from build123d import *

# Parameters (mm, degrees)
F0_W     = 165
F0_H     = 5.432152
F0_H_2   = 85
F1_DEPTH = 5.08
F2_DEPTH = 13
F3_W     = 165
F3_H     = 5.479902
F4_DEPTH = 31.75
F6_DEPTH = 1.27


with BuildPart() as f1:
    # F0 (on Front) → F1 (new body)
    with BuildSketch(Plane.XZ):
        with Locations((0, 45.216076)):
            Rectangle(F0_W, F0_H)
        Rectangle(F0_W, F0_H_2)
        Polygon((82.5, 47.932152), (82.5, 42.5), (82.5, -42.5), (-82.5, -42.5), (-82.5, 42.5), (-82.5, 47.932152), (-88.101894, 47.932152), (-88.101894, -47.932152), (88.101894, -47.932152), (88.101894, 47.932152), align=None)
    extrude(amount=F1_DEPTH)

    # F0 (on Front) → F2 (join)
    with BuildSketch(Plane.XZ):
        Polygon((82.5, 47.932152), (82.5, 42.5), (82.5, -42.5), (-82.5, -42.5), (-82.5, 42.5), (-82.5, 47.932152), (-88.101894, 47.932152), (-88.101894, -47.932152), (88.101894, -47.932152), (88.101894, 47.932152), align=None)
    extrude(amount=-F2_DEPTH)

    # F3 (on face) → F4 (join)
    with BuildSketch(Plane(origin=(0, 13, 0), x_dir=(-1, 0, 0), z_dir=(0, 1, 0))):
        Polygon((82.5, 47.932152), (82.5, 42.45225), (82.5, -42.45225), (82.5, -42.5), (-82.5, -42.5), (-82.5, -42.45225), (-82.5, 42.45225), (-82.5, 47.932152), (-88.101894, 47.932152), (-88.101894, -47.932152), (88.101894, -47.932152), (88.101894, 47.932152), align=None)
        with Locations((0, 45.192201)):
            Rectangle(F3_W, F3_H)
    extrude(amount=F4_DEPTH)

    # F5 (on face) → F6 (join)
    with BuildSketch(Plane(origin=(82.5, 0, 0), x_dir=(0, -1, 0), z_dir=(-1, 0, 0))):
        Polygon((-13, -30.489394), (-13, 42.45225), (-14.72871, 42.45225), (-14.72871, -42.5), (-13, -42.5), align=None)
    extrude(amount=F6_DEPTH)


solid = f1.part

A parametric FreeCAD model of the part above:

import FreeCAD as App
import Part
import Sketcher

V = App.Vector
Q = App.Units.Quantity

doc = App.newDocument("Part")
body = doc.addObject("PartDesign::Body", "Body")

# Sketch on XZ plane
sketch1 = body.newObject("Sketcher::SketchObject", "Sketch")
sketch1.AttachmentSupport = (doc.getObject("XZ_Plane"), [""])
sketch1.MapMode = "FlatFace"
sketch1.addGeometry([
    Part.LineSegment(V(-88, 48, 0), V(-88, -48, 0)),
    Part.LineSegment(V(-88, -48, 0), V(88, -48, 0)),
    Part.LineSegment(V(88, -48, 0), V(88, 48, 0)),
    Part.LineSegment(V(88, 48, 0), V(-88, 48, 0)),
], False)
sketch1.addConstraint([
    Sketcher.Constraint("Coincident", 0, 2, 1, 1),
    Sketcher.Constraint("Coincident", 1, 2, 2, 1),
    Sketcher.Constraint("Coincident", 2, 2, 3, 1),
    Sketcher.Constraint("Coincident", 3, 2, 0, 1),
    Sketcher.Constraint("Vertical", 0),
    Sketcher.Constraint("Horizontal", 1),
    Sketcher.Constraint("Vertical", 2),
    Sketcher.Constraint("Horizontal", 3),
    Sketcher.Constraint("Symmetric", 0, 2, 2, 2, -1, 1),
    Sketcher.Constraint("DistanceX", 1, 1, 1, 2, 176.203788),
    Sketcher.Constraint("DistanceY", 0, 2, 0, 1, 95.864304),
])
pad1 = body.newObject("PartDesign::Pad", "Pad")
pad1.Profile = sketch1
pad1.Length = Q("0.2 in")

# Sketch on XZ plane
sketch2 = body.newObject("Sketcher::SketchObject", "Sketch001")
sketch2.AttachmentSupport = (doc.getObject("XZ_Plane"), [""])
sketch2.MapMode = "FlatFace"
sketch2.addGeometry([
    Part.LineSegment(V(82, 48, 0), V(82, -42, 0)),  # 0
    Part.LineSegment(V(82, -42, 0), V(-82, -42, 0)),  # 1
    Part.LineSegment(V(-82, -42, 0), V(-82, 48, 0)),  # 2
    Part.LineSegment(V(-82, 48, 0), V(-88, 48, 0)),  # 3
    Part.LineSegment(V(-88, 48, 0), V(-88, -48, 0)),  # 4
    Part.LineSegment(V(-88, -48, 0), V(88, -48, 0)),  # 5
    Part.LineSegment(V(88, -48, 0), V(88, 48, 0)),  # 6
    Part.LineSegment(V(88, 48, 0), V(82, 48, 0)),  # 7
], False)
sketch2.addConstraint([
    Sketcher.Constraint("Coincident", 0, 2, 1, 1),
    Sketcher.Constraint("Coincident", 1, 2, 2, 1),
    Sketcher.Constraint("Coincident", 2, 2, 3, 1),
    Sketcher.Constraint("Coincident", 3, 2, 4, 1),
    Sketcher.Constraint("Coincident", 4, 2, 5, 1),
    Sketcher.Constraint("Coincident", 5, 2, 6, 1),
    Sketcher.Constraint("Coincident", 6, 2, 7, 1),
    Sketcher.Constraint("Coincident", 7, 2, 0, 1),
    Sketcher.Constraint("Vertical", 0),
    Sketcher.Constraint("Horizontal", 1),
    Sketcher.Constraint("Vertical", 2),
    Sketcher.Constraint("Horizontal", 3),
    Sketcher.Constraint("Vertical", 4),
    Sketcher.Constraint("Horizontal", 5),
    Sketcher.Constraint("Vertical", 6),
    Sketcher.Constraint("Horizontal", 7),
    Sketcher.Constraint("Symmetric", 3, 2, 5, 2, -1, 1),
    Sketcher.Constraint("Symmetric", 2, 2, 7, 2, -2),
    Sketcher.Constraint("DistanceX", 1, 2, 1, 1, 165.0),
    Sketcher.Constraint("DistanceX", 5, 1, 5, 2, 176.203788),
    Sketcher.Constraint("DistanceY", 0, 2, -1, 1, 42.5),
    Sketcher.Constraint("DistanceY", 0, 2, 0, 1, 90.432152),
])
pad2 = body.newObject("PartDesign::Pad", "Pad001")
pad2.Profile = sketch2
pad2.Length = 13
pad2.Reversed = True

# Sketch on XZ plane
sketch3 = body.newObject("Sketcher::SketchObject", "Sketch002")
sketch3.AttachmentSupport = (doc.getObject("XZ_Plane"), [""])
sketch3.MapMode = "FlatFace"
sketch3.AttachmentOffset = App.Placement(V(0, 0, -13), App.Rotation())
sketch3.addGeometry([
    Part.LineSegment(V(88, 48, 0), V(88, -48, 0)),  # 0
    Part.LineSegment(V(88, -48, 0), V(-88, -48, 0)),  # 1
    Part.LineSegment(V(-88, -48, 0), V(-88, 48, 0)),  # 2
    Part.LineSegment(V(-88, 48, 0), V(88, 48, 0)),  # 3
    Part.LineSegment(V(-82, 42, 0), V(-82, -42, 0)),  # 4
    Part.LineSegment(V(-82, -42, 0), V(82, -42, 0)),  # 5
    Part.LineSegment(V(82, -42, 0), V(82, 42, 0)),  # 6
    Part.LineSegment(V(82, 42, 0), V(-82, 42, 0)),  # 7
], False)
sketch3.addConstraint([
    Sketcher.Constraint("Coincident", 0, 2, 1, 1),
    Sketcher.Constraint("Coincident", 1, 2, 2, 1),
    Sketcher.Constraint("Coincident", 2, 2, 3, 1),
    Sketcher.Constraint("Coincident", 3, 2, 0, 1),
    Sketcher.Constraint("Coincident", 4, 2, 5, 1),
    Sketcher.Constraint("Coincident", 5, 2, 6, 1),
    Sketcher.Constraint("Coincident", 6, 2, 7, 1),
    Sketcher.Constraint("Coincident", 7, 2, 4, 1),
    Sketcher.Constraint("Vertical", 0),
    Sketcher.Constraint("Horizontal", 1),
    Sketcher.Constraint("Vertical", 2),
    Sketcher.Constraint("Horizontal", 3),
    Sketcher.Constraint("Vertical", 4),
    Sketcher.Constraint("Horizontal", 5),
    Sketcher.Constraint("Vertical", 6),
    Sketcher.Constraint("Horizontal", 7),
    Sketcher.Constraint("Symmetric", 0, 2, 2, 2, -1, 1),
    Sketcher.Constraint("DistanceX", 5, 1, 5, 2, 165.0),
    Sketcher.Constraint("DistanceX", 1, 2, 1, 1, 176.203788),
    Sketcher.Constraint("DistanceY", 4, 2, 4, 1, 84.95225),
    Sketcher.Constraint("DistanceX", 4, 2, -1, 1, 82.5),
    Sketcher.Constraint("DistanceY", 4, 2, -1, 1, 42.5),
    Sketcher.Constraint("DistanceY", 0, 2, 6, 2, 90.384402),
])
pad3 = body.newObject("PartDesign::Pad", "Pad002")
pad3.Profile = sketch3
pad3.Length = Q("1.25 in")
pad3.Reversed = True

# Sketch on YZ plane
sketch4 = body.newObject("Sketcher::SketchObject", "Sketch003")
sketch4.AttachmentSupport = (doc.getObject("YZ_Plane"), [""])
sketch4.MapMode = "FlatFace"
sketch4.AttachmentOffset = App.Placement(V(0, 0, 82.5), App.Rotation())
sketch4.addGeometry([
    Part.LineSegment(V(13, 42.5, 0), V(14.7, 42.5, 0)),
    Part.LineSegment(V(14.7, 42.5, 0), V(14.7, -42.5, 0)),
    Part.LineSegment(V(14.7, -42.5, 0), V(13, -42.5, 0)),
    Part.LineSegment(V(13, -42.5, 0), V(13, 42.5, 0)),
], False)
sketch4.addConstraint([
    Sketcher.Constraint("Coincident", 0, 2, 1, 1),
    Sketcher.Constraint("Coincident", 1, 2, 2, 1),
    Sketcher.Constraint("Coincident", 2, 2, 3, 1),
    Sketcher.Constraint("Coincident", 3, 2, 0, 1),
    Sketcher.Constraint("Horizontal", 0),
    Sketcher.Constraint("Vertical", 1),
    Sketcher.Constraint("Horizontal", 2),
    Sketcher.Constraint("Vertical", 3),
    Sketcher.Constraint("DistanceX", 0, 1, 0, 2, 1.72871),
    Sketcher.Constraint("DistanceY", 1, 2, 1, 1, 84.95225),
    Sketcher.Constraint("DistanceY", 1, 2, -1, 1, 42.5),
    Sketcher.Constraint("DistanceX", -1, 1, 2, 2, 13.0),
])
pad4 = body.newObject("PartDesign::Pad", "Pad003")
pad4.Profile = sketch4
pad4.Length = Q("0.05 in")
pad4.Reversed = True

doc.recompute()
